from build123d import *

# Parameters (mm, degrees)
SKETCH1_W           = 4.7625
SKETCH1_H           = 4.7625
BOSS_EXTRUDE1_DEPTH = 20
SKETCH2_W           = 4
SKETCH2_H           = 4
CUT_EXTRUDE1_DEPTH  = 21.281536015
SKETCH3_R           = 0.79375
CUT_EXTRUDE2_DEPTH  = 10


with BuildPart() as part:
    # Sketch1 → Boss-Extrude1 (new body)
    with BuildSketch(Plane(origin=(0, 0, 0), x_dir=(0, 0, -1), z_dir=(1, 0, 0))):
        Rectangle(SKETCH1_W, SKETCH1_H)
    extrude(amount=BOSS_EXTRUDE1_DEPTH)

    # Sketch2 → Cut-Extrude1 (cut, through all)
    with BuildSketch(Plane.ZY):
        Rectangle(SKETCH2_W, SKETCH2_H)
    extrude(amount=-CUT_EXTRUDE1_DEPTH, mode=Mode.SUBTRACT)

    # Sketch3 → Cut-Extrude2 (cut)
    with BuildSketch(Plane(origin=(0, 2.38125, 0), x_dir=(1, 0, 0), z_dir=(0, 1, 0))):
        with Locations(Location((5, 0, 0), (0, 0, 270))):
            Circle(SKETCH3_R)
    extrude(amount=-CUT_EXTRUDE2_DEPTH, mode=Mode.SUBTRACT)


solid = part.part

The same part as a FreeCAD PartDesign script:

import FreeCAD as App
import Part
import Sketcher

V = App.Vector
Q = App.Units.Quantity

doc = App.newDocument("Part")
body = doc.addObject("PartDesign::Body", "Body")

# Sketch on YZ plane
sketch1 = body.newObject("Sketcher::SketchObject", "Sketch")
sketch1.AttachmentSupport = (doc.getObject("YZ_Plane"), [""])
sketch1.MapMode = "FlatFace"
sketch1.addGeometry([
    Part.LineSegment(V(2.38125, 2.38125, 0), V(-2.38125, 2.38125, 0)),
    Part.LineSegment(V(-2.38125, 2.38125, 0), V(-2.38125, -2.38125, 0)),
    Part.LineSegment(V(-2.38125, -2.38125, 0), V(2.38125, -2.38125, 0)),
    Part.LineSegment(V(2.38125, -2.38125, 0), V(2.38125, 2.38125, 0)),
], False)
sketch1.addConstraint([
    Sketcher.Constraint("Coincident", 0, 2, 1, 1),
    Sketcher.Constraint("Coincident", 1, 2, 2, 1),
    Sketcher.Constraint("Coincident", 2, 2, 3, 1),
    Sketcher.Constraint("Coincident", 3, 2, 0, 1),
    Sketcher.Constraint("Horizontal", 0),
    Sketcher.Constraint("Vertical", 1),
    Sketcher.Constraint("Horizontal", 2),
    Sketcher.Constraint("Vertical", 3),
    Sketcher.Constraint("Symmetric", 0, 2, 2, 2, -1, 1),
    Sketcher.Constraint("Equal", 2, 1),
    Sketcher.Constraint("DistanceX", 0, 2, 0, 1, Q("4.7625 mm")),
])
pad1 = body.newObject("PartDesign::Pad", "Pad")
pad1.Profile = sketch1
pad1.Length = 20

# Sketch on YZ plane
sketch2 = body.newObject("Sketcher::SketchObject", "Sketch001")
sketch2.AttachmentSupport = (doc.getObject("YZ_Plane"), [""])
sketch2.MapMode = "FlatFace"
sketch2.addGeometry([
    Part.LineSegment(V(2, -2, 0), V(-2, -2, 0)),
    Part.LineSegment(V(-2, -2, 0), V(-2, 2, 0)),
    Part.LineSegment(V(-2, 2, 0), V(2, 2, 0)),
    Part.LineSegment(V(2, 2, 0), V(2, -2, 0)),
], False)
sketch2.addConstraint([
    Sketcher.Constraint("Coincident", 0, 2, 1, 1),
    Sketcher.Constraint("Coincident", 1, 2, 2, 1),
    Sketcher.Constraint("Coincident", 2, 2, 3, 1),
    Sketcher.Constraint("Coincident", 3, 2, 0, 1),
    Sketcher.Constraint("Horizontal", 0),
    Sketcher.Constraint("Vertical", 1),
    Sketcher.Constraint("Horizontal", 2),
    Sketcher.Constraint("Vertical", 3),
    Sketcher.Constraint("Symmetric", 0, 2, 2, 2, -1, 1),
    Sketcher.Constraint("Equal", 2, 1),
    Sketcher.Constraint("DistanceX", 0, 2, 0, 1, Q("4 mm")),
])
pocket1 = body.newObject("PartDesign::Pocket", "Pocket")
pocket1.Profile = sketch2
pocket1.Type = "ThroughAll"
pocket1.Reversed = True

# Sketch on XZ plane
sketch3 = body.newObject("Sketcher::SketchObject", "Sketch002")
sketch3.AttachmentSupport = (doc.getObject("XZ_Plane"), [""])
sketch3.MapMode = "FlatFace"
sketch3.AttachmentOffset = App.Placement(V(0, 0, -2.38125), App.Rotation())
sketch3.addGeometry(Part.Circle(V(5, 0, 0), V(0, 0, 1), 0.79375), False)
sketch3.addConstraint([
    Sketcher.Constraint("PointOnObject", 0, 3, -1),
    Sketcher.Constraint("DistanceX", -1, 1, 0, 3, Q("5 mm")),
    Sketcher.Constraint("Diameter", 0, Q("1.5875 mm")),
])
pocket2 = body.newObject("PartDesign::Pocket", "Pocket001")
pocket2.Profile = sketch3
pocket2.Length = 10
pocket2.Reversed = True

doc.recompute()
